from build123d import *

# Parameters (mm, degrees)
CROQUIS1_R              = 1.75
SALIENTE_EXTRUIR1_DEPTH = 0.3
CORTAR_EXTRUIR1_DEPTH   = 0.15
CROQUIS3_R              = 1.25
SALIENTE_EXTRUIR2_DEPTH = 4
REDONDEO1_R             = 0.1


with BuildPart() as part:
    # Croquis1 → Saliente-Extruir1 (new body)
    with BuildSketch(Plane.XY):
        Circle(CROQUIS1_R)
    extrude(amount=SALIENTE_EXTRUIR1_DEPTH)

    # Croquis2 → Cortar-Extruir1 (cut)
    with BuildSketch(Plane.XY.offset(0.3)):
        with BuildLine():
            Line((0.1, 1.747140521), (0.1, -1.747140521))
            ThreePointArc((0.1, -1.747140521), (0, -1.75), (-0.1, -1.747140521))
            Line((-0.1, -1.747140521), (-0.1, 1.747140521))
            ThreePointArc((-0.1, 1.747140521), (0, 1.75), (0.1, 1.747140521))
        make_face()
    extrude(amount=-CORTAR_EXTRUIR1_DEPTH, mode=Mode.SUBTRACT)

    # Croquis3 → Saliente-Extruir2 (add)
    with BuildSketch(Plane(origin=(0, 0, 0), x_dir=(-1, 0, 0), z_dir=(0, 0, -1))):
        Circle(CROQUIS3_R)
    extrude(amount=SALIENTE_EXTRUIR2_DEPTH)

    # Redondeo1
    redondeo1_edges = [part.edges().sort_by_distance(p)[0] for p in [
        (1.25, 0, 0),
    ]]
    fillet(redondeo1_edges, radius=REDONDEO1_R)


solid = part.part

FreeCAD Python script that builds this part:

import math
import FreeCAD as App
import Part
import Sketcher
from FreeCAD import Vector


def edges_at(feature, points):
    """Names of the edges that pass closest to the given points."""
    edges = feature.Shape.Edges
    near = lambda p: min(range(len(edges)), key=lambda i: edges[i].distToShape(Part.Vertex(*p))[0])
    return sorted({f"Edge{near(p) + 1}" for p in points})

doc = App.newDocument("Part")
body = doc.addObject("PartDesign::Body", "Body")

sketch1 = doc.addObject("Sketcher::SketchObject", "Sketch")
body.addObject(sketch1)
sketch1.AttachmentSupport = (doc.XY_Plane, [""])
sketch1.MapMode = "FlatFace"
sketch1.addGeometry(Part.Circle(Vector(0, 0, 0), Vector(0, 0, 1), 1.8), False)
sketch1.addConstraint([
    Sketcher.Constraint("Coincident", 0, 3, -1, 1),
    Sketcher.Constraint("Diameter", 0, 3.5),
])
pad1 = doc.addObject("PartDesign::Pad", "Pad")
body.addObject(pad1)
pad1.Profile = sketch1
pad1.Length = 0.3

sketch2 = doc.addObject("Sketcher::SketchObject", "Sketch001")
body.addObject(sketch2)
sketch2.AttachmentSupport = (doc.XY_Plane, [""])
sketch2.MapMode = "FlatFace"
sketch2.AttachmentOffset = App.Placement(Vector(0, 0, 0.3), App.Rotation())
sketch2.addGeometry([
    Part.LineSegment(Vector(0.1, -1.75, 0), Vector(0.1, 1.75, 0)),
    Part.ArcOfCircle(Part.Circle(Vector(0, 0, 0), Vector(0, 0, 1), 1.75), math.radians(86.72), math.radians(93.28)),
    Part.LineSegment(Vector(-0.1, 1.75, 0), Vector(-0.1, -1.75, 0)),
    Part.ArcOfCircle(Part.Circle(Vector(0, 0, 0), Vector(0, 0, 1), 1.75), math.radians(-93.28), math.radians(-86.72)),
], False)
sketch2.addConstraint([
    Sketcher.Constraint("Coincident", 0, 2, 1, 1),
    Sketcher.Constraint("Coincident", 1, 2, 2, 1),
    Sketcher.Constraint("Coincident", 2, 2, 3, 1),
    Sketcher.Constraint("Coincident", 3, 2, 0, 1),
    Sketcher.Constraint("Vertical", 0),
    Sketcher.Constraint("Vertical", 2),
    Sketcher.Constraint("Coincident", 1, 3, -1, 1),
    Sketcher.Constraint("Coincident", 3, 3, -1, 1),
    Sketcher.Constraint("Equal", 1, 3),
    Sketcher.Constraint("Horizontal", 0, 2, 1, 2),
    Sketcher.Constraint("Radius", 1, 1.75),
    Sketcher.Constraint("DistanceX", -1, 1, 0, 2, 0.1),
])
pocket1 = doc.addObject("PartDesign::Pocket", "Pocket")
body.addObject(pocket1)
pocket1.Profile = sketch2
pocket1.Length = 0.15

sketch3 = doc.addObject("Sketcher::SketchObject", "Sketch002")
body.addObject(sketch3)
sketch3.AttachmentSupport = (doc.XY_Plane, [""])
sketch3.MapMode = "FlatFace"
sketch3.addGeometry(Part.Circle(Vector(0, 0, 0), Vector(0, 0, 1), 1.2), False)
sketch3.addConstraint([
    Sketcher.Constraint("Coincident", 0, 3, -1, 1),
    Sketcher.Constraint("Diameter", 0, 2.5),
])
pad2 = doc.addObject("PartDesign::Pad", "Pad001")
body.addObject(pad2)
pad2.Profile = sketch3
pad2.Length = 4
pad2.Reversed = True
doc.recompute()

fillet = doc.addObject("PartDesign::Fillet", "Fillet")
body.addObject(fillet)
fillet.Base = (pad2, edges_at(pad2, [(1.25, 0, 0)]))
fillet.Radius = 0.1

doc.recompute()
